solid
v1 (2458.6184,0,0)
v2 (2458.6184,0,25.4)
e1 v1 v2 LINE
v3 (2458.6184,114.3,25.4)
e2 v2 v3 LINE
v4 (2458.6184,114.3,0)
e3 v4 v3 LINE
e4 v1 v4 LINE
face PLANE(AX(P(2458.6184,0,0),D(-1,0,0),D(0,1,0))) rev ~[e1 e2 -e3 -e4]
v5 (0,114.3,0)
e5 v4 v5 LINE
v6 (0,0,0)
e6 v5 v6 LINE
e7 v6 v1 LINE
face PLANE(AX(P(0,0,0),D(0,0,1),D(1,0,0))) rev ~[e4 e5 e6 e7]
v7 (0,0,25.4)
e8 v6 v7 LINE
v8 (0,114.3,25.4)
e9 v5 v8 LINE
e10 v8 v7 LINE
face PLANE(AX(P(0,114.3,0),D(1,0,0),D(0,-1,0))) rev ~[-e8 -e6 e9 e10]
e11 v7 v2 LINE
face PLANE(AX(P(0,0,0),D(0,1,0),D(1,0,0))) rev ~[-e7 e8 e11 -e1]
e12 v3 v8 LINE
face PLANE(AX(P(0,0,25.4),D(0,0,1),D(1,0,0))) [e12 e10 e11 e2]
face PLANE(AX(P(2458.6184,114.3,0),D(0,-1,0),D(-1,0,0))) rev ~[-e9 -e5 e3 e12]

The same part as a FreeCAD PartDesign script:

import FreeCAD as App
import Part
import Sketcher
Q = App.Units.Quantity


def add_polygon(sketch, points):
    """Adds a closed chain of lines whose ends are joined by coincident constraints."""
    first, n = sketch.GeometryCount, len(points)
    for a, b in zip(points, points[1:] + points[:1]):
        sketch.addGeometry(Part.LineSegment(App.Vector(*a, 0), App.Vector(*b, 0)), False)
    for i in range(n):
        sketch.addConstraint(Sketcher.Constraint("Coincident", first + i, 2, first + (i + 1) % n, 1))

doc = App.newDocument("Part")
body = doc.addObject("PartDesign::Body", "Body")

# Sketch on XY plane
sketch1 = body.newObject("Sketcher::SketchObject", "Sketch")
sketch1.AttachmentSupport = (doc.getObject("XY_Plane"), [""])
sketch1.MapMode = "FlatFace"
add_polygon(sketch1, [(0, 114), (0, 0), (2459, 0), (2459, 114)])  # lines 0-3
sketch1.addConstraint([
    Sketcher.Constraint("Vertical", 0),
    Sketcher.Constraint("Horizontal", 1),
    Sketcher.Constraint("Vertical", 2),
    Sketcher.Constraint("Horizontal", 3),
    Sketcher.Constraint("Coincident", 0, 2, -1, 1),
    Sketcher.Constraint("DistanceY", 0, 2, 0, 1, Q("4.5 in")),
    Sketcher.Constraint("DistanceX", 1, 1, 1, 2, Q("96.796 in")),
])
pad1 = body.newObject("PartDesign::Pad", "Pad")
pad1.Profile = sketch1
pad1.Length = Q("1 in")

doc.recompute()
